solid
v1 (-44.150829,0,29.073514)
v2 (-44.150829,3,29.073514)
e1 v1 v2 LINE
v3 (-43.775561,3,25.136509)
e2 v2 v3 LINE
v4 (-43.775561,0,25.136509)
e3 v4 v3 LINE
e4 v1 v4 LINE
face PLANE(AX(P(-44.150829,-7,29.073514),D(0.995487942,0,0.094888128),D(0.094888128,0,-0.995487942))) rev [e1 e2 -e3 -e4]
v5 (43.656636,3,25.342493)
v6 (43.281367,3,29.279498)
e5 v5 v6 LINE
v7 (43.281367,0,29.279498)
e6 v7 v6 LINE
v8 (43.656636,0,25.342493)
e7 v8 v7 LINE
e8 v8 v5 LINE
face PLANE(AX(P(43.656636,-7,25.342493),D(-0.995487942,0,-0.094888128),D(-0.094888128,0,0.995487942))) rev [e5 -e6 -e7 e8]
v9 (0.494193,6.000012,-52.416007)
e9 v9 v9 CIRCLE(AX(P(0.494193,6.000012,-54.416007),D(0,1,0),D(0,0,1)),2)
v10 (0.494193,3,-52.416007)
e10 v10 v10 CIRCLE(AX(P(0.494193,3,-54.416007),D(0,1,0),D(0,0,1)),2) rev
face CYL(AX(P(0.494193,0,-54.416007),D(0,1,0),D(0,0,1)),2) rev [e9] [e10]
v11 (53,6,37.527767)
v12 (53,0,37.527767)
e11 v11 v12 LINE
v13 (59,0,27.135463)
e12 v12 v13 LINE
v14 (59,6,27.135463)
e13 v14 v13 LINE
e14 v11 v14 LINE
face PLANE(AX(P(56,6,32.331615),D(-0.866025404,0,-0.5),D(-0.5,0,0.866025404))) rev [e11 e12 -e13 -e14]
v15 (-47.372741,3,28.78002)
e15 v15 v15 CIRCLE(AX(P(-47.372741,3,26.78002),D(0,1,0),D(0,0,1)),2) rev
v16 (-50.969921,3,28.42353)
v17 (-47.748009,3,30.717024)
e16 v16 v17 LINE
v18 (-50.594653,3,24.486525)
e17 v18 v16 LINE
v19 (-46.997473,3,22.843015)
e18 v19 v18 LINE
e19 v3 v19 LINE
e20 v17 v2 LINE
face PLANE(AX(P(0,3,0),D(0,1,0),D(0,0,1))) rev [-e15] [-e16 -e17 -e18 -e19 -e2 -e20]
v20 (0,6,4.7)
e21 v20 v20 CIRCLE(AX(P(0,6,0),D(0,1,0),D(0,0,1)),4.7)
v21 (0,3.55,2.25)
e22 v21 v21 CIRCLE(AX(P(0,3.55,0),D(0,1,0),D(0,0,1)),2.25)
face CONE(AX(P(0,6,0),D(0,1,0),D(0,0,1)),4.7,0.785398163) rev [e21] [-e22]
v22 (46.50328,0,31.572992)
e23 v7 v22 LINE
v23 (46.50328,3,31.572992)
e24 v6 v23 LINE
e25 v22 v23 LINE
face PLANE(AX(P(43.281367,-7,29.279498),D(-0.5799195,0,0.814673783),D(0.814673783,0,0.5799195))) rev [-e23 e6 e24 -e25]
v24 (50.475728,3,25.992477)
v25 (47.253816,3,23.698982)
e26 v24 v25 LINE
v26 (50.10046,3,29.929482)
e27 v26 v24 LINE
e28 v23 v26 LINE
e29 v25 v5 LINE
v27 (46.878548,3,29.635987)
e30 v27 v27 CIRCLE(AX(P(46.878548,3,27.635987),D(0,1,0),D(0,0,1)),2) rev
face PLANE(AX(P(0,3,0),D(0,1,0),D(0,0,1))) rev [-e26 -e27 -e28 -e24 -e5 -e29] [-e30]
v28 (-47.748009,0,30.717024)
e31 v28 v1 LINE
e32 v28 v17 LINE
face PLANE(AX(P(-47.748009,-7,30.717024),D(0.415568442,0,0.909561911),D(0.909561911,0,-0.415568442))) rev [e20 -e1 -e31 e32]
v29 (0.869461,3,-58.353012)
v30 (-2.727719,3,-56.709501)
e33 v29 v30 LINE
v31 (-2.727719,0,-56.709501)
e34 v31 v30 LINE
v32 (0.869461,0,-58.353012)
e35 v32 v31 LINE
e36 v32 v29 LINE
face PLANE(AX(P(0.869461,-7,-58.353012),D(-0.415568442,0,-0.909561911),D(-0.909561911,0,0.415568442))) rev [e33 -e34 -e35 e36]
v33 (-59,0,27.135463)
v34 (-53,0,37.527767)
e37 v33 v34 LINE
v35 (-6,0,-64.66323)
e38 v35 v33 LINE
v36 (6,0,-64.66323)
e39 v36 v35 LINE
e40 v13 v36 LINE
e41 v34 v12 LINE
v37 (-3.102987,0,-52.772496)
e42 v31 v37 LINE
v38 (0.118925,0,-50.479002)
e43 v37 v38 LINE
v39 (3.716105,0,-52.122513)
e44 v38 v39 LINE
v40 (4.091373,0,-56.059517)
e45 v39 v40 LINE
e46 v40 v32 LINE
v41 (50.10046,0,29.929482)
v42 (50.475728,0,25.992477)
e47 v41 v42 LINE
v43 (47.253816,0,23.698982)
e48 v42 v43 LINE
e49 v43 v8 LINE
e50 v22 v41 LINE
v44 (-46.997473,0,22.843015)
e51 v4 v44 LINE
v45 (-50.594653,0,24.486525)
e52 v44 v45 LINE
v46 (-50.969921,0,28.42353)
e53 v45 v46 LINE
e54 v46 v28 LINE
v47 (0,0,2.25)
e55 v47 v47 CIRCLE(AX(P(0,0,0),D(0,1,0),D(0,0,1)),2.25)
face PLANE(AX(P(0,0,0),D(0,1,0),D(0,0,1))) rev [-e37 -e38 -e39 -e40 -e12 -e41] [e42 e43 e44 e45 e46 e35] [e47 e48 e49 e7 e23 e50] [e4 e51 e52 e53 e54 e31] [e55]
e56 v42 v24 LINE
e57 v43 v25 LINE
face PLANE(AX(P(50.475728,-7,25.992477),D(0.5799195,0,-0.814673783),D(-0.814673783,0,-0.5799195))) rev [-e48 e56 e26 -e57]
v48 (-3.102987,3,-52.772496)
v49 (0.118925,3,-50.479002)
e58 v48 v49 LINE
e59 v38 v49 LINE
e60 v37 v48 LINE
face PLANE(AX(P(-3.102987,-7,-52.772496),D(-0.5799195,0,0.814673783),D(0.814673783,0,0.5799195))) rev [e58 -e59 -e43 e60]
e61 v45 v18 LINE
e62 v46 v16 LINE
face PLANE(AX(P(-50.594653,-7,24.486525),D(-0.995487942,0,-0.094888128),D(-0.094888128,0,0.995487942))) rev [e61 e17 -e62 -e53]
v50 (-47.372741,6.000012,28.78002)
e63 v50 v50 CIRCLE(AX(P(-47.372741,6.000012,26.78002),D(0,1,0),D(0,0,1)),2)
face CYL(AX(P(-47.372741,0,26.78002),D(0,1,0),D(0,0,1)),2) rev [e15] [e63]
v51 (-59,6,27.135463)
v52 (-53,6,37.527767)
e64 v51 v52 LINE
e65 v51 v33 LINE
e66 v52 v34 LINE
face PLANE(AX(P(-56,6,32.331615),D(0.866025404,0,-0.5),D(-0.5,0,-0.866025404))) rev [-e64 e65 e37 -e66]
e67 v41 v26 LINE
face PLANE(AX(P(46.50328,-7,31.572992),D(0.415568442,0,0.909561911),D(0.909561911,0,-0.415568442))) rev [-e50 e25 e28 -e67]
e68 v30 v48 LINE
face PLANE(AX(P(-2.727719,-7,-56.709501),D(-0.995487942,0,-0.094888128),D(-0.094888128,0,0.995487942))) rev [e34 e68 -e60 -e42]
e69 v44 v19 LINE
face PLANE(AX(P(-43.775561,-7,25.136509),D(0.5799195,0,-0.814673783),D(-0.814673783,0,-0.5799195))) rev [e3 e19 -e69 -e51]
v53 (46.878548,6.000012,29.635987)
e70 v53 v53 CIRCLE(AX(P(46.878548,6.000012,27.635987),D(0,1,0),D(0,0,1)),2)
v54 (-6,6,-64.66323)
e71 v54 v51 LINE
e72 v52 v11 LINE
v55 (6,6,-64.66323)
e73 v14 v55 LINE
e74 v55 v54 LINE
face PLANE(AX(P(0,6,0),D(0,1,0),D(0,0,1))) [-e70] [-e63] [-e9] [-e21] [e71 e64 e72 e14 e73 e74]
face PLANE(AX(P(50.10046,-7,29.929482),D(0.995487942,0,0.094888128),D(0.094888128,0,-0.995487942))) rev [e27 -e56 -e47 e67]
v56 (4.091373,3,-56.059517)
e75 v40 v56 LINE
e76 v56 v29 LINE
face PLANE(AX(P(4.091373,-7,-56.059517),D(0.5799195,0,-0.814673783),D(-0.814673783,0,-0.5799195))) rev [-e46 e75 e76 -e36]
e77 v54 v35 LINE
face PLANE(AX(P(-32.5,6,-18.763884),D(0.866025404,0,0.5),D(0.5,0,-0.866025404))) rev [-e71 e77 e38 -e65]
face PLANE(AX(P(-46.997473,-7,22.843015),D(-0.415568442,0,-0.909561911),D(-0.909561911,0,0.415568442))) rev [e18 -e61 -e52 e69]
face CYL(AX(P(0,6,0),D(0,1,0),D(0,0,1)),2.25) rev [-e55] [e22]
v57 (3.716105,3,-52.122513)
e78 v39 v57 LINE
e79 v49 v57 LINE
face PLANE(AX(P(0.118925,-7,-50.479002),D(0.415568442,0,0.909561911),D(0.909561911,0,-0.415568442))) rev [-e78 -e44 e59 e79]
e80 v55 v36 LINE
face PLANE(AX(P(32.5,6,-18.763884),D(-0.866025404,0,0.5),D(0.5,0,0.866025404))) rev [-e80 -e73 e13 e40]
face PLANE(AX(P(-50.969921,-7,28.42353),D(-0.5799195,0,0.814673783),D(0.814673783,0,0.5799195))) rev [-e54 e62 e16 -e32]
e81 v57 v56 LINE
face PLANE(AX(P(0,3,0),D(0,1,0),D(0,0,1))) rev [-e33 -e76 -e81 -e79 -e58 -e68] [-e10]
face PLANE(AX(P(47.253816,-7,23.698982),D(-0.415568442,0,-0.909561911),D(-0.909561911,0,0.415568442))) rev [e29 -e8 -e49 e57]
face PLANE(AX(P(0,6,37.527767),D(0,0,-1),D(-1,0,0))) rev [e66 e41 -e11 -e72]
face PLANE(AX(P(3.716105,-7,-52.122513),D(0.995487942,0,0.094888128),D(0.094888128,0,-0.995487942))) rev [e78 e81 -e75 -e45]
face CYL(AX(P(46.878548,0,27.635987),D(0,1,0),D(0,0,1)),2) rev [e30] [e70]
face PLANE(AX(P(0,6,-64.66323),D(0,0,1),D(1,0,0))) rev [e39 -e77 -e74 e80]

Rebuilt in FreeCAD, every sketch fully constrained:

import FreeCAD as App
import Part
import Sketcher
from FreeCAD import Vector
Q = App.Units.Quantity


def add_polygon(sketch, points):
    """Adds a closed chain of lines whose ends are joined by coincident constraints."""
    first, n = sketch.GeometryCount, len(points)
    for a, b in zip(points, points[1:] + points[:1]):
        sketch.addGeometry(Part.LineSegment(App.Vector(*a, 0), App.Vector(*b, 0)), False)
    for i in range(n):
        sketch.addConstraint(Sketcher.Constraint("Coincident", first + i, 2, first + (i + 1) % n, 1))

doc = App.newDocument("Part")
params = doc.addObject("Spreadsheet::Sheet", "Params")
for row, (alias, value) in enumerate([
    ("sketch1_width", "106 mm"),
    ("sketch1_width2", "12 mm"),
    ("sketch1_length", "106 mm"),
    ("pad1_length", "6 mm"),
    ("sketch2_diameter", "4.5 mm"),
    ("hole_diameter", "4.5 mm"),
    ("hole_csink_diameter", "9.4 mm"),
    ("sketch3_diameter", "4 mm"),
    ("pocket2_length", "10 mm"),
], start=1):
    params.set(f"A{row}", alias)
    params.set(f"B{row}", "=" + value)
    params.setAlias(f"B{row}", alias)

body = doc.addObject("PartDesign::Body", "Body")

# Sketch on XZ plane
sketch1 = body.newObject("Sketcher::SketchObject", "Sketch")
sketch1.AttachmentSupport = (doc.getObject("XZ_Plane"), [""])
sketch1.MapMode = "FlatFace"
add_polygon(sketch1, [(-6, -65), (-59, 27), (-53, 38), (53, 38), (59, 27), (6, -65)])  # lines 0-5
sketch1.addConstraint(Sketcher.Constraint("Horizontal", 2))
sketch1.addConstraint(Sketcher.Constraint("Horizontal", 5))
sketch1.addConstraint(Sketcher.Constraint("Symmetric", 0, 2, 3, 2, -2))
sketch1.addConstraint(Sketcher.Constraint("Parallel", 0, 3))
sketch1.addConstraint(Sketcher.Constraint("Parallel", 1, 4))
sketch1.addConstraint(Sketcher.Constraint("Equal", 1, 3))
sketch1.addConstraint(Sketcher.Constraint("DistanceX", 2, 1, 2, 2, Q("106 mm")))
sketch1.addConstraint(Sketcher.Constraint("DistanceX", 5, 2, 5, 1, Q("12 mm")))
sketch1.addConstraint(Sketcher.Constraint("Angle", 0, Q("120 deg")))
sketch1.addConstraint(Sketcher.Constraint("Distance", 0, Q("106 mm")))
sketch1.addConstraint(Sketcher.Constraint("DistanceY", 4, 2, -1, 1, Q("64.66323 mm")))
sketch1.setExpression("Constraints[12]", "Params.sketch1_width")
sketch1.setExpression("Constraints[13]", "Params.sketch1_width2")
sketch1.setExpression("Constraints[15]", "Params.sketch1_length")
pad1 = body.newObject("PartDesign::Pad", "Pad")
pad1.Profile = sketch1
pad1.setExpression("Length", "Params.pad1_length")
pad1.Reversed = True

# Sketch on XZ plane
sketch2 = body.newObject("Sketcher::SketchObject", "Sketch001")
sketch2.AttachmentSupport = (doc.getObject("XZ_Plane"), [""])
sketch2.MapMode = "FlatFace"
sketch2.AttachmentOffset = App.Placement(Vector(0, 0, -6), App.Rotation())
sketch2.addGeometry(Part.Circle(Vector(0, 0, 0), Vector(0, 0, 1), 2.2), False)
sketch2.addConstraint(Sketcher.Constraint("Coincident", 0, 3, -1, 1))
sketch2.addConstraint(Sketcher.Constraint("Diameter", 0, Q("4.5 mm")))
sketch2.setExpression("Constraints[1]", "Params.sketch2_diameter")
doc.recompute()
hole = body.newObject("PartDesign::Hole", "Hole")
hole.Profile = sketch2
hole.ThreadType = "None"
hole.setExpression("Diameter", "Params.hole_diameter")
hole.DepthType = "ThroughAll"
hole.HoleCutType = "Countersink"
hole.setExpression("HoleCutDiameter", "Params.hole_csink_diameter")
hole.HoleCutCountersinkAngle = 90
hole.Reversed = True

# Sketch on XZ plane
sketch3 = body.newObject("Sketcher::SketchObject", "Sketch002")
sketch3.AttachmentSupport = (doc.getObject("XZ_Plane"), [""])
sketch3.MapMode = "FlatFace"
sketch3.AttachmentOffset = App.Placement(Vector(0, 0, -6), App.Rotation())
sketch3.addGeometry(Part.Circle(Vector(-47.4, 26.8, 0), Vector(0, 0, 1), 2), False)
sketch3.addGeometry(Part.Circle(Vector(0.5, -54.4, 0), Vector(0, 0, 1), 2), False)
sketch3.addGeometry(Part.Circle(Vector(46.9, 27.6, 0), Vector(0, 0, 1), 2), False)
sketch3.addConstraint(Sketcher.Constraint("Equal", 0, 1))
sketch3.addConstraint(Sketcher.Constraint("Equal", 1, 2))
sketch3.addConstraint(Sketcher.Constraint("Diameter", 0, Q("4 mm")))
sketch3.addConstraint(Sketcher.Constraint("DistanceX", 0, 3, -1, 1, Q("47.372741 mm")))
sketch3.addConstraint(Sketcher.Constraint("DistanceY", -1, 1, 0, 3, Q("26.78002 mm")))
sketch3.addConstraint(Sketcher.Constraint("DistanceX", 0, 3, 2, 3, Q("94.251289 mm")))
sketch3.addConstraint(Sketcher.Constraint("DistanceX", -1, 1, 1, 3, Q("0.494193 mm")))
sketch3.addConstraint(Sketcher.Constraint("DistanceY", 1, 3, -1, 1, Q("54.416007 mm")))
sketch3.addConstraint(Sketcher.Constraint("DistanceY", -1, 1, 2, 3, Q("27.635987 mm")))
sketch3.setExpression("Constraints[2]", "Params.sketch3_diameter")
pocket1 = body.newObject("PartDesign::Pocket", "Pocket")
pocket1.Profile = sketch3
pocket1.Type = "ThroughAll"
pocket1.Midplane = True

# Sketch on XZ plane
sketch4 = body.newObject("Sketcher::SketchObject", "Sketch003")
sketch4.AttachmentSupport = (doc.getObject("XZ_Plane"), [""])
sketch4.MapMode = "FlatFace"
sketch4.AttachmentOffset = App.Placement(Vector(0, 0, -3), App.Rotation())
add_polygon(sketch4, [(-43.8, 25.1), (-47, 22.8), (-50.6, 24.5), (-51, 28.4), (-47.7, 30.7), (-44.2, 29.1)])  # lines 0-5
add_polygon(sketch4, [(3.7, -52.1), (4.1, -56.1), (0.9, -58.4), (-2.7, -56.7), (-3.1, -52.8), (0.1, -50.5)])  # lines 6-11
add_polygon(sketch4, [(43.3, 29.3), (46.5, 31.6), (50.1, 29.9), (50.5, 26), (47.3, 23.7), (43.7, 25.3)])  # lines 12-17
sketch4.addConstraint(Sketcher.Constraint("Parallel", 0, 3))
sketch4.addConstraint(Sketcher.Constraint("Parallel", 1, 4))
sketch4.addConstraint(Sketcher.Constraint("Parallel", 2, 5))
sketch4.addConstraint(Sketcher.Constraint("Parallel", 5, 6))
sketch4.addConstraint(Sketcher.Constraint("Parallel", 3, 7))
sketch4.addConstraint(Sketcher.Constraint("Parallel", 4, 8))
sketch4.addConstraint(Sketcher.Constraint("Parallel", 6, 9))
sketch4.addConstraint(Sketcher.Constraint("Parallel", 7, 10))
sketch4.addConstraint(Sketcher.Constraint("Parallel", 8, 11))
sketch4.addConstraint(Sketcher.Constraint("Parallel", 10, 12))
sketch4.addConstraint(Sketcher.Constraint("Parallel", 11, 13))
sketch4.addConstraint(Sketcher.Constraint("Parallel", 9, 14))
sketch4.addConstraint(Sketcher.Constraint("Parallel", 12, 15))
sketch4.addConstraint(Sketcher.Constraint("Parallel", 13, 16))
sketch4.addConstraint(Sketcher.Constraint("Parallel", 14, 17))
sketch4.addConstraint(Sketcher.Constraint("Equal", 0, 1))
sketch4.addConstraint(Sketcher.Constraint("Equal", 1, 2))
sketch4.addConstraint(Sketcher.Constraint("Equal", 2, 3))
sketch4.addConstraint(Sketcher.Constraint("Equal", 5, 6))
sketch4.addConstraint(Sketcher.Constraint("Equal", 6, 7))
sketch4.addConstraint(Sketcher.Constraint("Equal", 7, 8))
sketch4.addConstraint(Sketcher.Constraint("Equal", 8, 9))
sketch4.addConstraint(Sketcher.Constraint("Equal", 11, 12))
sketch4.addConstraint(Sketcher.Constraint("Equal", 12, 13))
sketch4.addConstraint(Sketcher.Constraint("Equal", 13, 14))
sketch4.addConstraint(Sketcher.Constraint("Equal", 14, 15))
sketch4.addConstraint(Sketcher.Constraint("DistanceY", 8, 2, -1, 1, Q("56.709501 mm")))
sketch4.addConstraint(Sketcher.Constraint("DistanceY", 1, 2, 3, 2, Q("6.230499 mm")))
sketch4.addConstraint(Sketcher.Constraint("Distance", 0, Q("3.954849 mm")))
sketch4.addConstraint(Sketcher.Constraint("DistanceX", 2, 2, -1, 1, Q("50.969921 mm")))
sketch4.addConstraint(Sketcher.Constraint("DistanceY", -1, 1, 2, 2, Q("28.42353 mm")))
sketch4.addConstraint(Sketcher.Constraint("DistanceX", 3, 2, -1, 1, Q("47.748009 mm")))
sketch4.addConstraint(Sketcher.Constraint("DistanceX", 4, 2, -1, 1, Q("44.150829 mm")))
sketch4.addConstraint(Sketcher.Constraint("DistanceX", -1, 1, 7, 2, Q("0.869461 mm")))
sketch4.addConstraint(Sketcher.Constraint("DistanceX", -1, 1, 12, 2, Q("46.50328 mm")))
sketch4.addConstraint(Sketcher.Constraint("DistanceY", -1, 1, 13, 2, Q("29.929482 mm")))
pocket2 = body.newObject("PartDesign::Pocket", "Pocket001")
pocket2.Profile = sketch4
pocket2.setExpression("Length", "Params.pocket2_length")
pocket2.Reversed = True

doc.recompute()
